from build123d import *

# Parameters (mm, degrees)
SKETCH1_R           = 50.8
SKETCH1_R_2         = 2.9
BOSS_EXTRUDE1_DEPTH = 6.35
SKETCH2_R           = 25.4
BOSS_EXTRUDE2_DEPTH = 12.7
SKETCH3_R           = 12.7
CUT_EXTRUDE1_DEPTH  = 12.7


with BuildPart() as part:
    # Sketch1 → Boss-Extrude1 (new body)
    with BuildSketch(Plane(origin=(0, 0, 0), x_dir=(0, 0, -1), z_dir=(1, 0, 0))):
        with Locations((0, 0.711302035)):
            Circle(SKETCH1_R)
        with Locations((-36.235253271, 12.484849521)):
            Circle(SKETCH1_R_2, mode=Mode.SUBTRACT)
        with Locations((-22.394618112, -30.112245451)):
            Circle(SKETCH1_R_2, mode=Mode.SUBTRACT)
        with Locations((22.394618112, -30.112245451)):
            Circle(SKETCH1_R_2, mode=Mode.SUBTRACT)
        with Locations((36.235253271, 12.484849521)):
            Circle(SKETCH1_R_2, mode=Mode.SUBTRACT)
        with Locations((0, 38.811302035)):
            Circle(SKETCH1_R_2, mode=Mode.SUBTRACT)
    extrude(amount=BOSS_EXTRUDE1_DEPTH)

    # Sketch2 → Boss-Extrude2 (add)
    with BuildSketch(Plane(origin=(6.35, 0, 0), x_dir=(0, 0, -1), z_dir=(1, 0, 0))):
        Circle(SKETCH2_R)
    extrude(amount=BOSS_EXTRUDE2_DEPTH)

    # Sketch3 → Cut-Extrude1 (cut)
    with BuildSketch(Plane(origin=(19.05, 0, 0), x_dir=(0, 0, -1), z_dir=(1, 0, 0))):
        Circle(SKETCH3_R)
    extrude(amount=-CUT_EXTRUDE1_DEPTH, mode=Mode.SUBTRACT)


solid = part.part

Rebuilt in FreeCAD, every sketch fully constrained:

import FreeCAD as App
import Part
import Sketcher
from FreeCAD import Vector
Q = App.Units.Quantity

doc = App.newDocument("Part")
body = doc.addObject("PartDesign::Body", "Body")

# Sketch on YZ plane
sketch1 = doc.addObject("Sketcher::SketchObject", "Sketch")
body.addObject(sketch1)
sketch1.AttachmentSupport = (doc.YZ_Plane, [""])
sketch1.MapMode = "FlatFace"
sketch1.addGeometry(Part.Circle(Vector(0.711302, 0, 0), Vector(0, 0, 1), 50.8), False)
sketch1.addGeometry(Part.Circle(Vector(-30.112245, 22.394618, 0), Vector(0, 0, 1), 2.9), False)
sketch1.addGeometry(Part.Circle(Vector(-30.112245, -22.394618, 0), Vector(0, 0, 1), 2.9), False)
sketch1.addGeometry(Part.Circle(Vector(12.48485, 36.235253, 0), Vector(0, 0, 1), 2.9), False)
sketch1.addGeometry(Part.Circle(Vector(12.48485, -36.235253, 0), Vector(0, 0, 1), 2.9), False)
sketch1.addGeometry(Part.Circle(Vector(38.811302, 0, 0), Vector(0, 0, 1), 2.9), False)
sketch1.addConstraint(Sketcher.Constraint("Equal", 1, 2))
sketch1.addConstraint(Sketcher.Constraint("Equal", 2, 3))
sketch1.addConstraint(Sketcher.Constraint("Equal", 3, 4))
sketch1.addConstraint(Sketcher.Constraint("Equal", 4, 5))
sketch1.addConstraint(Sketcher.Constraint("Symmetric", 1, 3, 2, 3, -1))
sketch1.addConstraint(Sketcher.Constraint("Symmetric", 3, 3, 4, 3, -1))
sketch1.addConstraint(Sketcher.Constraint("PointOnObject", 0, 3, -1))
sketch1.addConstraint(Sketcher.Constraint("PointOnObject", 5, 3, -1))
sketch1.addConstraint(Sketcher.Constraint("Diameter", 0, Q("4 in")))
sketch1.addConstraint(Sketcher.Constraint("DistanceX", 0, 3, 5, 3, Q("1.5 in")))
sketch1.addConstraint(Sketcher.Constraint("Diameter", 1, 5.8))
sketch1.addConstraint(Sketcher.Constraint("DistanceY", -1, 1, 1, 3, 22.394618))
sketch1.addConstraint(Sketcher.Constraint("DistanceX", -1, 1, 3, 3, 12.48485))
sketch1.addConstraint(Sketcher.Constraint("DistanceY", 2, 3, 3, 3, 58.629871))
sketch1.addConstraint(Sketcher.Constraint("DistanceX", -1, 1, 0, 3, 0.711302))
sketch1.addConstraint(Sketcher.Constraint("DistanceX", 1, 3, -1, 1, 30.112245))
pad1 = doc.addObject("PartDesign::Pad", "Pad")
body.addObject(pad1)
pad1.Profile = sketch1
pad1.Length = Q("0.25 in")

# Sketch on YZ plane
sketch2 = doc.addObject("Sketcher::SketchObject", "Sketch001")
body.addObject(sketch2)
sketch2.AttachmentSupport = (doc.YZ_Plane, [""])
sketch2.MapMode = "FlatFace"
sketch2.AttachmentOffset = App.Placement(Vector(0, 0, 0.25 * 25.4), App.Rotation())
sketch2.addGeometry(Part.Circle(Vector(0, 0, 0), Vector(0, 0, 1), 25.4), False)
sketch2.addConstraint(Sketcher.Constraint("Coincident", 0, 3, -1, 1))
sketch2.addConstraint(Sketcher.Constraint("Diameter", 0, Q("2 in")))
pad2 = doc.addObject("PartDesign::Pad", "Pad001")
body.addObject(pad2)
pad2.Profile = sketch2
pad2.Length = Q("0.5 in")

# Sketch on YZ plane
sketch3 = doc.addObject("Sketcher::SketchObject", "Sketch002")
body.addObject(sketch3)
sketch3.AttachmentSupport = (doc.YZ_Plane, [""])
sketch3.MapMode = "FlatFace"
sketch3.AttachmentOffset = App.Placement(Vector(0, 0, 0.75 * 25.4), App.Rotation())
sketch3.addGeometry(Part.Circle(Vector(0, 0, 0), Vector(0, 0, 1), 12.7), False)
sketch3.addConstraint(Sketcher.Constraint("Coincident", 0, 3, -1, 1))
sketch3.addConstraint(Sketcher.Constraint("Diameter", 0, Q("1 in")))
pocket1 = doc.addObject("PartDesign::Pocket", "Pocket")
body.addObject(pocket1)
pocket1.Profile = sketch3
pocket1.Length = Q("0.5 in")

doc.recompute()
